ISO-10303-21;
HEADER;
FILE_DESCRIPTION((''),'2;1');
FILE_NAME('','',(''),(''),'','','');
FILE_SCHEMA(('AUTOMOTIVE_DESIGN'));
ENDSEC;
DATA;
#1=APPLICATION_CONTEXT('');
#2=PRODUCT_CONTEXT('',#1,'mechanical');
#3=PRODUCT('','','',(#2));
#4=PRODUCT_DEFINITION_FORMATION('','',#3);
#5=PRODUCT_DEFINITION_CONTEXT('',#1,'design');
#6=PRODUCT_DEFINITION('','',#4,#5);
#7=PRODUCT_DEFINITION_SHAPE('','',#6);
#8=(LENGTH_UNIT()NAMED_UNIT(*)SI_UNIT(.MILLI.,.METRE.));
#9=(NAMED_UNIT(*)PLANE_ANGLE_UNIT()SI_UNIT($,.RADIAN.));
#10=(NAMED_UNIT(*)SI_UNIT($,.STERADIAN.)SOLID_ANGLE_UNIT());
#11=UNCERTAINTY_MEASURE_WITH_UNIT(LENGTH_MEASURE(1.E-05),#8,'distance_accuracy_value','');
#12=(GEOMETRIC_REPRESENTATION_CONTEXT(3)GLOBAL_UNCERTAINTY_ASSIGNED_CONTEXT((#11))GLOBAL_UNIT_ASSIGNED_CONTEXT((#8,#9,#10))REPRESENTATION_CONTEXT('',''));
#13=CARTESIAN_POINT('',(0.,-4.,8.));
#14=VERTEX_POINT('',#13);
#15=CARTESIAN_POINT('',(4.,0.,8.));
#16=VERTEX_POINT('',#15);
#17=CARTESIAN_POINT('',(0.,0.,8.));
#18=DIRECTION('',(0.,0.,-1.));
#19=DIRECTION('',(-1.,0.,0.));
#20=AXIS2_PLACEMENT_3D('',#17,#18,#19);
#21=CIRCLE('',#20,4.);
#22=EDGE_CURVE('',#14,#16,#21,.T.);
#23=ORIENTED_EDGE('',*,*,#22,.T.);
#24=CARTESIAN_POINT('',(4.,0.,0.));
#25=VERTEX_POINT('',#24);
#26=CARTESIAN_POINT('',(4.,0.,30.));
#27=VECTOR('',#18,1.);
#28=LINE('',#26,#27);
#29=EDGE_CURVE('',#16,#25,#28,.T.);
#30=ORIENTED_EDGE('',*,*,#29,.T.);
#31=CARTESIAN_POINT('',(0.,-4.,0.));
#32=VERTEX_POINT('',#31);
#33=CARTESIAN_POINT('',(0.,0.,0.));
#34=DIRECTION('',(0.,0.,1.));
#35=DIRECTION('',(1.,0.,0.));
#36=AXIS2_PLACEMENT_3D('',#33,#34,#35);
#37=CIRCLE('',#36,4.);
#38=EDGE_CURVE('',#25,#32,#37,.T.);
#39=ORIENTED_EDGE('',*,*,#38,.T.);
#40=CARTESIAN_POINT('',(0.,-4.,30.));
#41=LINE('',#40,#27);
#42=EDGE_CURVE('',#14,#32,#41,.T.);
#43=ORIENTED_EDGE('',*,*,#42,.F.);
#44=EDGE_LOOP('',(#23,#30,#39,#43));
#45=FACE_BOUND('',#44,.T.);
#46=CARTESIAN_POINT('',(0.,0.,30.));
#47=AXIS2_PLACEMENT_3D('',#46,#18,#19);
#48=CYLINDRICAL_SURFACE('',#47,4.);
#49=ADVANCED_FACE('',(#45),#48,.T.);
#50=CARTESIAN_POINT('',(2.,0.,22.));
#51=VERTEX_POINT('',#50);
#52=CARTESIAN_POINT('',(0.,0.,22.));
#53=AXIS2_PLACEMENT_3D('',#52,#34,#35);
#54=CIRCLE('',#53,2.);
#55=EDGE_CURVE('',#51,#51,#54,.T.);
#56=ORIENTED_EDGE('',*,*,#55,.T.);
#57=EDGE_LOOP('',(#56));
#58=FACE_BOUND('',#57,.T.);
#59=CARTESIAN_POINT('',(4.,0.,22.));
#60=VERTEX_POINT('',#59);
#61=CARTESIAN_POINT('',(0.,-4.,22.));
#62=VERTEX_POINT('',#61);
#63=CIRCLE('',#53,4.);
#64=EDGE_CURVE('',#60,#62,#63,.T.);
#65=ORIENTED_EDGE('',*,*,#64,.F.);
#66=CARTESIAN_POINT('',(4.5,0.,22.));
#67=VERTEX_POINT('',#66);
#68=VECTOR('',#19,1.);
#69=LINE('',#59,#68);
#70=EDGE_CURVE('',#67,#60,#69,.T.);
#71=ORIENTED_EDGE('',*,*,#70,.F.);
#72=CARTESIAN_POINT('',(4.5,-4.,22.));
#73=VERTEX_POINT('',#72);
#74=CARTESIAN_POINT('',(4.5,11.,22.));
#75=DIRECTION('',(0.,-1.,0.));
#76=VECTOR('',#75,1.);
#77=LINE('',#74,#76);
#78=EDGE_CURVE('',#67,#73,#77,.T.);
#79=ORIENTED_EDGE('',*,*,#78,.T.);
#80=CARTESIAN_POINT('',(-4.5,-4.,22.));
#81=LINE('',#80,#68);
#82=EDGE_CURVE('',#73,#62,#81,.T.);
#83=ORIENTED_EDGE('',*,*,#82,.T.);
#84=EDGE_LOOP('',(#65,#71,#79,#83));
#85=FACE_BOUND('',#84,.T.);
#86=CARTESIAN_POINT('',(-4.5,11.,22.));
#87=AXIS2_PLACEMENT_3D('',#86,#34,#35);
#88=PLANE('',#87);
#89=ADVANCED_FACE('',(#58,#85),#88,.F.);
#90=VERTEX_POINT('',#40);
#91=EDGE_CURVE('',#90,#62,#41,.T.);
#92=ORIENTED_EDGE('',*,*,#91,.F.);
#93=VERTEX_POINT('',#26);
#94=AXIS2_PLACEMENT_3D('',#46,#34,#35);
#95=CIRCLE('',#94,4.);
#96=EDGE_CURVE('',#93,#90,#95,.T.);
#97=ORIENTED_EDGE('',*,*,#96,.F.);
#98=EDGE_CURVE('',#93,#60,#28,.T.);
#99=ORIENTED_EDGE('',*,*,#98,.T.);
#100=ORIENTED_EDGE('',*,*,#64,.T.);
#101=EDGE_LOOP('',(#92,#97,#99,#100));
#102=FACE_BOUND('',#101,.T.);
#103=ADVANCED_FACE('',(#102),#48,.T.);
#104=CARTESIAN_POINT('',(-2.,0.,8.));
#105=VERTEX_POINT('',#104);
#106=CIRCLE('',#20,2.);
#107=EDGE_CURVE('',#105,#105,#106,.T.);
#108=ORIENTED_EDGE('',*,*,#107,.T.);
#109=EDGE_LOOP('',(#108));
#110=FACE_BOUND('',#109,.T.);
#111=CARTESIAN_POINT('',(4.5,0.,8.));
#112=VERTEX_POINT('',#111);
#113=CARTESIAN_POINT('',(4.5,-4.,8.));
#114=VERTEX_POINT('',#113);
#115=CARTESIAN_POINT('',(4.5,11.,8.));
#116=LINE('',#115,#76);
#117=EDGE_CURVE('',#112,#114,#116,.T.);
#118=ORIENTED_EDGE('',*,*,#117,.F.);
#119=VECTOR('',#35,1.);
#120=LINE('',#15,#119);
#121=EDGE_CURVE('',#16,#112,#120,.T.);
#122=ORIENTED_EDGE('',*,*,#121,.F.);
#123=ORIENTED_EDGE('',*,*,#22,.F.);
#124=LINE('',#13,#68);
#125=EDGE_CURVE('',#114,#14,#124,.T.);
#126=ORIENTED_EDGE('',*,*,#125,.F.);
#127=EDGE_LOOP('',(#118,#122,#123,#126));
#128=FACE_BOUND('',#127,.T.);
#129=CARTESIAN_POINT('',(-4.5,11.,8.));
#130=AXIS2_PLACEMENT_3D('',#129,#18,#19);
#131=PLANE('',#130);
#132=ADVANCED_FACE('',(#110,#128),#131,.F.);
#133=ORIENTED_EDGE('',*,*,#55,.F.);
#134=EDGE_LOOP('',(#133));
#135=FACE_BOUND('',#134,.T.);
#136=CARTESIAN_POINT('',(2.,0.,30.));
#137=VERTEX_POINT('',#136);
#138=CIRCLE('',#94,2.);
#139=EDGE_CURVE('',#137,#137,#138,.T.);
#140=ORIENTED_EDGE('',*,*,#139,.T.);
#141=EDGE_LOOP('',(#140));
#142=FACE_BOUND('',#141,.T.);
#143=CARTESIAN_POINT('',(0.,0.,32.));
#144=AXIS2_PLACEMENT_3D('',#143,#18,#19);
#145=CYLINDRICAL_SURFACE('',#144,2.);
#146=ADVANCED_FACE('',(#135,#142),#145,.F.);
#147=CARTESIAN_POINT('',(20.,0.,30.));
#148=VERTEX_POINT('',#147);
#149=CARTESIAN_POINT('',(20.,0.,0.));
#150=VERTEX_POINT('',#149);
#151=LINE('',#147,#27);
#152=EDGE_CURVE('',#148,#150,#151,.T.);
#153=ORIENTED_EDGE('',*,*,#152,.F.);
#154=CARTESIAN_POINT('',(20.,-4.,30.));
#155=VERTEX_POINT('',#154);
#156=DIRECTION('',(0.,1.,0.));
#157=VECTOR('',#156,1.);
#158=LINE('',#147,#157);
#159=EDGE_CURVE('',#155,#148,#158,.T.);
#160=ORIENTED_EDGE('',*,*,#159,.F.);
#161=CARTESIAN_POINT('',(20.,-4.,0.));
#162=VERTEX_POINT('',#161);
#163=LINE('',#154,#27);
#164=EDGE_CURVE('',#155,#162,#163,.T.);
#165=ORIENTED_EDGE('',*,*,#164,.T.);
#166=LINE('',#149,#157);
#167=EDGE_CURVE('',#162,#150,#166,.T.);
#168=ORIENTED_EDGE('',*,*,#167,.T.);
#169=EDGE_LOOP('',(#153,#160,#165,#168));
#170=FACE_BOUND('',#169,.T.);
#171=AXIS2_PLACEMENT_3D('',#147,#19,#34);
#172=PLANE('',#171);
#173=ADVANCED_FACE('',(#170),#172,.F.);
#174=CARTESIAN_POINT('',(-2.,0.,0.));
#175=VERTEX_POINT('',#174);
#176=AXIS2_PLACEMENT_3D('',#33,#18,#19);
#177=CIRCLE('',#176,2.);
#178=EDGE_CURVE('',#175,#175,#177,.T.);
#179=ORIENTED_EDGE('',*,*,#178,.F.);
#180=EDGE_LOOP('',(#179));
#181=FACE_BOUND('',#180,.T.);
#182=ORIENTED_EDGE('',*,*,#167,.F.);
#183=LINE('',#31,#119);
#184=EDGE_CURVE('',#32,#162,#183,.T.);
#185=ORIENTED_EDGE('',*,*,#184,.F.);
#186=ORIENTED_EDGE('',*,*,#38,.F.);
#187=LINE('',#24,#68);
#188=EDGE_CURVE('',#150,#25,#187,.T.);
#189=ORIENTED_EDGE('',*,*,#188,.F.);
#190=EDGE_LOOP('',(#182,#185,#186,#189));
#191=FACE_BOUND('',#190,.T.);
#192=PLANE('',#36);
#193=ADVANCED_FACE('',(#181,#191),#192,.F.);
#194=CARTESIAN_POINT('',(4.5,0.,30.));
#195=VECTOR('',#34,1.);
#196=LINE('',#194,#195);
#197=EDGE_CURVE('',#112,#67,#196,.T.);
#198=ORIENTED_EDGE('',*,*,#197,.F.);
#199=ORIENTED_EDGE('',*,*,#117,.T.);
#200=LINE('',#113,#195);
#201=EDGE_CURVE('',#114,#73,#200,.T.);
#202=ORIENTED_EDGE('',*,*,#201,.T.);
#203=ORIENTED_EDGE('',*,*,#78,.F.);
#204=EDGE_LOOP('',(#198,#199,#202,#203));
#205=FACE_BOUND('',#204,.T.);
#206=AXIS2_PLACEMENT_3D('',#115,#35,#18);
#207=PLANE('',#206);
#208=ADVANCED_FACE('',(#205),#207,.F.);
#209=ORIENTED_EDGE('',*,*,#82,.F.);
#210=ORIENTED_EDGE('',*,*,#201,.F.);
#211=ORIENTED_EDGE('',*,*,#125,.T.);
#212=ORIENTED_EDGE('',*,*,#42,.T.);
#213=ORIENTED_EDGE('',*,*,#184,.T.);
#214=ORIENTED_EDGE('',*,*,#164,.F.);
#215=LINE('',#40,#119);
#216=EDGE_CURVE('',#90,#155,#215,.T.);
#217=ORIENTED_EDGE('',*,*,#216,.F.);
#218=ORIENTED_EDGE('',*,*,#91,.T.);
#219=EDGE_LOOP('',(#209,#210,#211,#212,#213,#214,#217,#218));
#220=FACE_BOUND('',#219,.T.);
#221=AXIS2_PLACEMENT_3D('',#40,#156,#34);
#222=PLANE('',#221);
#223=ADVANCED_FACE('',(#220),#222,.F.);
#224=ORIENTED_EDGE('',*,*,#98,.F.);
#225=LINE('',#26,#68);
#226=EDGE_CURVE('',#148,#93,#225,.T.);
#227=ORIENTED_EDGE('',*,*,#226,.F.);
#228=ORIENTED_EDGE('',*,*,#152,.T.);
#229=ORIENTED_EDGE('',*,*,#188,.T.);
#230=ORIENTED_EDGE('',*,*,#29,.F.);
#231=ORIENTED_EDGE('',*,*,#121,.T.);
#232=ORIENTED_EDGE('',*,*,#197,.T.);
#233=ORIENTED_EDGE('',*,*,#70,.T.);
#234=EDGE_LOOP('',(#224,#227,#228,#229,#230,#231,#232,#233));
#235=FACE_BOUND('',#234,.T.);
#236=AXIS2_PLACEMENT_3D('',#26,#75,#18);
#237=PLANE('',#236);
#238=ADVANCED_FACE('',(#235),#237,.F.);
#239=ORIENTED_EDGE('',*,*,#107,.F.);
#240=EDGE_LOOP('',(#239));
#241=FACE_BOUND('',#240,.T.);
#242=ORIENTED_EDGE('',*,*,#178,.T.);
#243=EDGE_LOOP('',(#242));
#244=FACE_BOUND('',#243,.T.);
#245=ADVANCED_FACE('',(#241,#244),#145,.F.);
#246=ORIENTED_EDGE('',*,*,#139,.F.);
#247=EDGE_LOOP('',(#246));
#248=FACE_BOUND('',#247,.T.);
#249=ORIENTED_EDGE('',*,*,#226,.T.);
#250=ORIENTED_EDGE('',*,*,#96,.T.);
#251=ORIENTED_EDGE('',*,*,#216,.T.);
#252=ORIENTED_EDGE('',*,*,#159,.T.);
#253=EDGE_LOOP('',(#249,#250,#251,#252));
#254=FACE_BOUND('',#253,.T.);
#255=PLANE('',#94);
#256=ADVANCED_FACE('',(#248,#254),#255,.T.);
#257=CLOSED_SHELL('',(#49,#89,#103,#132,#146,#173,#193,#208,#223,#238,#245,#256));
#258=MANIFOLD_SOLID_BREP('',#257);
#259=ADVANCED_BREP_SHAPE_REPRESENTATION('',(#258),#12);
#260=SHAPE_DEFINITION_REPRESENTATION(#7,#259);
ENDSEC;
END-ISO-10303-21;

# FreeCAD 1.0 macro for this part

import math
import FreeCAD as App
import Part
import Sketcher

V = App.Vector
Q = App.Units.Quantity

doc = App.newDocument("Part")
body = doc.addObject("PartDesign::Body", "Body")

# Sketch on XY plane
sketch1 = body.newObject("Sketcher::SketchObject", "Sketch")
sketch1.AttachmentSupport = (doc.getObject("XY_Plane"), [""])
sketch1.MapMode = "FlatFace"
sketch1.addGeometry(Part.LineSegment(V(20, 0, 0), V(4, 0, 0)), False)
sketch1.addGeometry(Part.ArcOfCircle(Part.Circle(V(0, 0, 0), V(0, 0, 1), 4), math.radians(0), math.radians(270)), False)
sketch1.addGeometry(Part.LineSegment(V(0, -4, 0), V(20, -4, 0)), False)
sketch1.addGeometry(Part.LineSegment(V(20, -4, 0), V(20, 0, 0)), False)
sketch1.addConstraint(Sketcher.Constraint("Coincident", 0, 2, 1, 1))
sketch1.addConstraint(Sketcher.Constraint("Tangent", 1, 2, 2, 1))
sketch1.addConstraint(Sketcher.Constraint("Coincident", 2, 2, 3, 1))
sketch1.addConstraint(Sketcher.Constraint("Coincident", 3, 2, 0, 1))
sketch1.addConstraint(Sketcher.Constraint("Horizontal", 0))
sketch1.addConstraint(Sketcher.Constraint("Horizontal", 2))
sketch1.addConstraint(Sketcher.Constraint("Vertical", 3))
sketch1.addConstraint(Sketcher.Constraint("Coincident", 1, 3, -1, 1))
sketch1.addConstraint(Sketcher.Constraint("PointOnObject", 0, 2, -1))
sketch1.addConstraint(Sketcher.Constraint("Radius", 1, Q("4 mm")))
sketch1.addConstraint(Sketcher.Constraint("DistanceX", 0, 2, 0, 1, Q("16 mm")))
pad1 = body.newObject("PartDesign::Pad", "Pad")
pad1.Profile = sketch1
pad1.Length = 30

# Sketch on XZ plane
sketch2 = body.newObject("Sketcher::SketchObject", "Sketch001")
sketch2.AttachmentSupport = (doc.getObject("XZ_Plane"), [""])
sketch2.MapMode = "FlatFace"
sketch2.AttachmentOffset = App.Placement(V(0, 0, 4), App.Rotation())
sketch2.addGeometry(Part.LineSegment(V(-4.5, 22, 0), V(-4.5, 8, 0)), False)
sketch2.addGeometry(Part.LineSegment(V(-4.5, 8, 0), V(4.5, 8, 0)), False)
sketch2.addGeometry(Part.LineSegment(V(4.5, 8, 0), V(4.5, 22, 0)), False)
sketch2.addGeometry(Part.LineSegment(V(4.5, 22, 0), V(-4.5, 22, 0)), False)
sketch2.addConstraint(Sketcher.Constraint("Coincident", 0, 2, 1, 1))
sketch2.addConstraint(Sketcher.Constraint("Coincident", 1, 2, 2, 1))
sketch2.addConstraint(Sketcher.Constraint("Coincident", 2, 2, 3, 1))
sketch2.addConstraint(Sketcher.Constraint("Coincident", 3, 2, 0, 1))
sketch2.addConstraint(Sketcher.Constraint("Vertical", 0))
sketch2.addConstraint(Sketcher.Constraint("Horizontal", 1))
sketch2.addConstraint(Sketcher.Constraint("Vertical", 2))
sketch2.addConstraint(Sketcher.Constraint("Horizontal", 3))
sketch2.addConstraint(Sketcher.Constraint("DistanceX", 1, 1, 1, 2, Q("9 mm")))
sketch2.addConstraint(Sketcher.Constraint("DistanceY", 0, 2, 0, 1, Q("14 mm")))
sketch2.addConstraint(Sketcher.Constraint("DistanceY", -1, 1, 0, 2, Q("8 mm")))
sketch2.addConstraint(Sketcher.Constraint("DistanceX", 0, 2, -1, 1, Q("4.5 mm")))
pocket1 = body.newObject("PartDesign::Pocket", "Pocket")
pocket1.Profile = sketch2
pocket1.Length = 15

# Sketch on XY plane
sketch3 = body.newObject("Sketcher::SketchObject", "Sketch002")
sketch3.AttachmentSupport = (doc.getObject("XY_Plane"), [""])
sketch3.MapMode = "FlatFace"
sketch3.addGeometry(Part.Circle(V(0, 0, 0), V(0, 0, 1), 2), False)
sketch3.addConstraint(Sketcher.Constraint("Coincident", 0, 3, -1, 1))
sketch3.addConstraint(Sketcher.Constraint("Diameter", 0, Q("4 mm")))
pocket2 = body.newObject("PartDesign::Pocket", "Pocket001")
pocket2.Profile = sketch3
pocket2.Length = 32
pocket2.Reversed = True

doc.recompute()
